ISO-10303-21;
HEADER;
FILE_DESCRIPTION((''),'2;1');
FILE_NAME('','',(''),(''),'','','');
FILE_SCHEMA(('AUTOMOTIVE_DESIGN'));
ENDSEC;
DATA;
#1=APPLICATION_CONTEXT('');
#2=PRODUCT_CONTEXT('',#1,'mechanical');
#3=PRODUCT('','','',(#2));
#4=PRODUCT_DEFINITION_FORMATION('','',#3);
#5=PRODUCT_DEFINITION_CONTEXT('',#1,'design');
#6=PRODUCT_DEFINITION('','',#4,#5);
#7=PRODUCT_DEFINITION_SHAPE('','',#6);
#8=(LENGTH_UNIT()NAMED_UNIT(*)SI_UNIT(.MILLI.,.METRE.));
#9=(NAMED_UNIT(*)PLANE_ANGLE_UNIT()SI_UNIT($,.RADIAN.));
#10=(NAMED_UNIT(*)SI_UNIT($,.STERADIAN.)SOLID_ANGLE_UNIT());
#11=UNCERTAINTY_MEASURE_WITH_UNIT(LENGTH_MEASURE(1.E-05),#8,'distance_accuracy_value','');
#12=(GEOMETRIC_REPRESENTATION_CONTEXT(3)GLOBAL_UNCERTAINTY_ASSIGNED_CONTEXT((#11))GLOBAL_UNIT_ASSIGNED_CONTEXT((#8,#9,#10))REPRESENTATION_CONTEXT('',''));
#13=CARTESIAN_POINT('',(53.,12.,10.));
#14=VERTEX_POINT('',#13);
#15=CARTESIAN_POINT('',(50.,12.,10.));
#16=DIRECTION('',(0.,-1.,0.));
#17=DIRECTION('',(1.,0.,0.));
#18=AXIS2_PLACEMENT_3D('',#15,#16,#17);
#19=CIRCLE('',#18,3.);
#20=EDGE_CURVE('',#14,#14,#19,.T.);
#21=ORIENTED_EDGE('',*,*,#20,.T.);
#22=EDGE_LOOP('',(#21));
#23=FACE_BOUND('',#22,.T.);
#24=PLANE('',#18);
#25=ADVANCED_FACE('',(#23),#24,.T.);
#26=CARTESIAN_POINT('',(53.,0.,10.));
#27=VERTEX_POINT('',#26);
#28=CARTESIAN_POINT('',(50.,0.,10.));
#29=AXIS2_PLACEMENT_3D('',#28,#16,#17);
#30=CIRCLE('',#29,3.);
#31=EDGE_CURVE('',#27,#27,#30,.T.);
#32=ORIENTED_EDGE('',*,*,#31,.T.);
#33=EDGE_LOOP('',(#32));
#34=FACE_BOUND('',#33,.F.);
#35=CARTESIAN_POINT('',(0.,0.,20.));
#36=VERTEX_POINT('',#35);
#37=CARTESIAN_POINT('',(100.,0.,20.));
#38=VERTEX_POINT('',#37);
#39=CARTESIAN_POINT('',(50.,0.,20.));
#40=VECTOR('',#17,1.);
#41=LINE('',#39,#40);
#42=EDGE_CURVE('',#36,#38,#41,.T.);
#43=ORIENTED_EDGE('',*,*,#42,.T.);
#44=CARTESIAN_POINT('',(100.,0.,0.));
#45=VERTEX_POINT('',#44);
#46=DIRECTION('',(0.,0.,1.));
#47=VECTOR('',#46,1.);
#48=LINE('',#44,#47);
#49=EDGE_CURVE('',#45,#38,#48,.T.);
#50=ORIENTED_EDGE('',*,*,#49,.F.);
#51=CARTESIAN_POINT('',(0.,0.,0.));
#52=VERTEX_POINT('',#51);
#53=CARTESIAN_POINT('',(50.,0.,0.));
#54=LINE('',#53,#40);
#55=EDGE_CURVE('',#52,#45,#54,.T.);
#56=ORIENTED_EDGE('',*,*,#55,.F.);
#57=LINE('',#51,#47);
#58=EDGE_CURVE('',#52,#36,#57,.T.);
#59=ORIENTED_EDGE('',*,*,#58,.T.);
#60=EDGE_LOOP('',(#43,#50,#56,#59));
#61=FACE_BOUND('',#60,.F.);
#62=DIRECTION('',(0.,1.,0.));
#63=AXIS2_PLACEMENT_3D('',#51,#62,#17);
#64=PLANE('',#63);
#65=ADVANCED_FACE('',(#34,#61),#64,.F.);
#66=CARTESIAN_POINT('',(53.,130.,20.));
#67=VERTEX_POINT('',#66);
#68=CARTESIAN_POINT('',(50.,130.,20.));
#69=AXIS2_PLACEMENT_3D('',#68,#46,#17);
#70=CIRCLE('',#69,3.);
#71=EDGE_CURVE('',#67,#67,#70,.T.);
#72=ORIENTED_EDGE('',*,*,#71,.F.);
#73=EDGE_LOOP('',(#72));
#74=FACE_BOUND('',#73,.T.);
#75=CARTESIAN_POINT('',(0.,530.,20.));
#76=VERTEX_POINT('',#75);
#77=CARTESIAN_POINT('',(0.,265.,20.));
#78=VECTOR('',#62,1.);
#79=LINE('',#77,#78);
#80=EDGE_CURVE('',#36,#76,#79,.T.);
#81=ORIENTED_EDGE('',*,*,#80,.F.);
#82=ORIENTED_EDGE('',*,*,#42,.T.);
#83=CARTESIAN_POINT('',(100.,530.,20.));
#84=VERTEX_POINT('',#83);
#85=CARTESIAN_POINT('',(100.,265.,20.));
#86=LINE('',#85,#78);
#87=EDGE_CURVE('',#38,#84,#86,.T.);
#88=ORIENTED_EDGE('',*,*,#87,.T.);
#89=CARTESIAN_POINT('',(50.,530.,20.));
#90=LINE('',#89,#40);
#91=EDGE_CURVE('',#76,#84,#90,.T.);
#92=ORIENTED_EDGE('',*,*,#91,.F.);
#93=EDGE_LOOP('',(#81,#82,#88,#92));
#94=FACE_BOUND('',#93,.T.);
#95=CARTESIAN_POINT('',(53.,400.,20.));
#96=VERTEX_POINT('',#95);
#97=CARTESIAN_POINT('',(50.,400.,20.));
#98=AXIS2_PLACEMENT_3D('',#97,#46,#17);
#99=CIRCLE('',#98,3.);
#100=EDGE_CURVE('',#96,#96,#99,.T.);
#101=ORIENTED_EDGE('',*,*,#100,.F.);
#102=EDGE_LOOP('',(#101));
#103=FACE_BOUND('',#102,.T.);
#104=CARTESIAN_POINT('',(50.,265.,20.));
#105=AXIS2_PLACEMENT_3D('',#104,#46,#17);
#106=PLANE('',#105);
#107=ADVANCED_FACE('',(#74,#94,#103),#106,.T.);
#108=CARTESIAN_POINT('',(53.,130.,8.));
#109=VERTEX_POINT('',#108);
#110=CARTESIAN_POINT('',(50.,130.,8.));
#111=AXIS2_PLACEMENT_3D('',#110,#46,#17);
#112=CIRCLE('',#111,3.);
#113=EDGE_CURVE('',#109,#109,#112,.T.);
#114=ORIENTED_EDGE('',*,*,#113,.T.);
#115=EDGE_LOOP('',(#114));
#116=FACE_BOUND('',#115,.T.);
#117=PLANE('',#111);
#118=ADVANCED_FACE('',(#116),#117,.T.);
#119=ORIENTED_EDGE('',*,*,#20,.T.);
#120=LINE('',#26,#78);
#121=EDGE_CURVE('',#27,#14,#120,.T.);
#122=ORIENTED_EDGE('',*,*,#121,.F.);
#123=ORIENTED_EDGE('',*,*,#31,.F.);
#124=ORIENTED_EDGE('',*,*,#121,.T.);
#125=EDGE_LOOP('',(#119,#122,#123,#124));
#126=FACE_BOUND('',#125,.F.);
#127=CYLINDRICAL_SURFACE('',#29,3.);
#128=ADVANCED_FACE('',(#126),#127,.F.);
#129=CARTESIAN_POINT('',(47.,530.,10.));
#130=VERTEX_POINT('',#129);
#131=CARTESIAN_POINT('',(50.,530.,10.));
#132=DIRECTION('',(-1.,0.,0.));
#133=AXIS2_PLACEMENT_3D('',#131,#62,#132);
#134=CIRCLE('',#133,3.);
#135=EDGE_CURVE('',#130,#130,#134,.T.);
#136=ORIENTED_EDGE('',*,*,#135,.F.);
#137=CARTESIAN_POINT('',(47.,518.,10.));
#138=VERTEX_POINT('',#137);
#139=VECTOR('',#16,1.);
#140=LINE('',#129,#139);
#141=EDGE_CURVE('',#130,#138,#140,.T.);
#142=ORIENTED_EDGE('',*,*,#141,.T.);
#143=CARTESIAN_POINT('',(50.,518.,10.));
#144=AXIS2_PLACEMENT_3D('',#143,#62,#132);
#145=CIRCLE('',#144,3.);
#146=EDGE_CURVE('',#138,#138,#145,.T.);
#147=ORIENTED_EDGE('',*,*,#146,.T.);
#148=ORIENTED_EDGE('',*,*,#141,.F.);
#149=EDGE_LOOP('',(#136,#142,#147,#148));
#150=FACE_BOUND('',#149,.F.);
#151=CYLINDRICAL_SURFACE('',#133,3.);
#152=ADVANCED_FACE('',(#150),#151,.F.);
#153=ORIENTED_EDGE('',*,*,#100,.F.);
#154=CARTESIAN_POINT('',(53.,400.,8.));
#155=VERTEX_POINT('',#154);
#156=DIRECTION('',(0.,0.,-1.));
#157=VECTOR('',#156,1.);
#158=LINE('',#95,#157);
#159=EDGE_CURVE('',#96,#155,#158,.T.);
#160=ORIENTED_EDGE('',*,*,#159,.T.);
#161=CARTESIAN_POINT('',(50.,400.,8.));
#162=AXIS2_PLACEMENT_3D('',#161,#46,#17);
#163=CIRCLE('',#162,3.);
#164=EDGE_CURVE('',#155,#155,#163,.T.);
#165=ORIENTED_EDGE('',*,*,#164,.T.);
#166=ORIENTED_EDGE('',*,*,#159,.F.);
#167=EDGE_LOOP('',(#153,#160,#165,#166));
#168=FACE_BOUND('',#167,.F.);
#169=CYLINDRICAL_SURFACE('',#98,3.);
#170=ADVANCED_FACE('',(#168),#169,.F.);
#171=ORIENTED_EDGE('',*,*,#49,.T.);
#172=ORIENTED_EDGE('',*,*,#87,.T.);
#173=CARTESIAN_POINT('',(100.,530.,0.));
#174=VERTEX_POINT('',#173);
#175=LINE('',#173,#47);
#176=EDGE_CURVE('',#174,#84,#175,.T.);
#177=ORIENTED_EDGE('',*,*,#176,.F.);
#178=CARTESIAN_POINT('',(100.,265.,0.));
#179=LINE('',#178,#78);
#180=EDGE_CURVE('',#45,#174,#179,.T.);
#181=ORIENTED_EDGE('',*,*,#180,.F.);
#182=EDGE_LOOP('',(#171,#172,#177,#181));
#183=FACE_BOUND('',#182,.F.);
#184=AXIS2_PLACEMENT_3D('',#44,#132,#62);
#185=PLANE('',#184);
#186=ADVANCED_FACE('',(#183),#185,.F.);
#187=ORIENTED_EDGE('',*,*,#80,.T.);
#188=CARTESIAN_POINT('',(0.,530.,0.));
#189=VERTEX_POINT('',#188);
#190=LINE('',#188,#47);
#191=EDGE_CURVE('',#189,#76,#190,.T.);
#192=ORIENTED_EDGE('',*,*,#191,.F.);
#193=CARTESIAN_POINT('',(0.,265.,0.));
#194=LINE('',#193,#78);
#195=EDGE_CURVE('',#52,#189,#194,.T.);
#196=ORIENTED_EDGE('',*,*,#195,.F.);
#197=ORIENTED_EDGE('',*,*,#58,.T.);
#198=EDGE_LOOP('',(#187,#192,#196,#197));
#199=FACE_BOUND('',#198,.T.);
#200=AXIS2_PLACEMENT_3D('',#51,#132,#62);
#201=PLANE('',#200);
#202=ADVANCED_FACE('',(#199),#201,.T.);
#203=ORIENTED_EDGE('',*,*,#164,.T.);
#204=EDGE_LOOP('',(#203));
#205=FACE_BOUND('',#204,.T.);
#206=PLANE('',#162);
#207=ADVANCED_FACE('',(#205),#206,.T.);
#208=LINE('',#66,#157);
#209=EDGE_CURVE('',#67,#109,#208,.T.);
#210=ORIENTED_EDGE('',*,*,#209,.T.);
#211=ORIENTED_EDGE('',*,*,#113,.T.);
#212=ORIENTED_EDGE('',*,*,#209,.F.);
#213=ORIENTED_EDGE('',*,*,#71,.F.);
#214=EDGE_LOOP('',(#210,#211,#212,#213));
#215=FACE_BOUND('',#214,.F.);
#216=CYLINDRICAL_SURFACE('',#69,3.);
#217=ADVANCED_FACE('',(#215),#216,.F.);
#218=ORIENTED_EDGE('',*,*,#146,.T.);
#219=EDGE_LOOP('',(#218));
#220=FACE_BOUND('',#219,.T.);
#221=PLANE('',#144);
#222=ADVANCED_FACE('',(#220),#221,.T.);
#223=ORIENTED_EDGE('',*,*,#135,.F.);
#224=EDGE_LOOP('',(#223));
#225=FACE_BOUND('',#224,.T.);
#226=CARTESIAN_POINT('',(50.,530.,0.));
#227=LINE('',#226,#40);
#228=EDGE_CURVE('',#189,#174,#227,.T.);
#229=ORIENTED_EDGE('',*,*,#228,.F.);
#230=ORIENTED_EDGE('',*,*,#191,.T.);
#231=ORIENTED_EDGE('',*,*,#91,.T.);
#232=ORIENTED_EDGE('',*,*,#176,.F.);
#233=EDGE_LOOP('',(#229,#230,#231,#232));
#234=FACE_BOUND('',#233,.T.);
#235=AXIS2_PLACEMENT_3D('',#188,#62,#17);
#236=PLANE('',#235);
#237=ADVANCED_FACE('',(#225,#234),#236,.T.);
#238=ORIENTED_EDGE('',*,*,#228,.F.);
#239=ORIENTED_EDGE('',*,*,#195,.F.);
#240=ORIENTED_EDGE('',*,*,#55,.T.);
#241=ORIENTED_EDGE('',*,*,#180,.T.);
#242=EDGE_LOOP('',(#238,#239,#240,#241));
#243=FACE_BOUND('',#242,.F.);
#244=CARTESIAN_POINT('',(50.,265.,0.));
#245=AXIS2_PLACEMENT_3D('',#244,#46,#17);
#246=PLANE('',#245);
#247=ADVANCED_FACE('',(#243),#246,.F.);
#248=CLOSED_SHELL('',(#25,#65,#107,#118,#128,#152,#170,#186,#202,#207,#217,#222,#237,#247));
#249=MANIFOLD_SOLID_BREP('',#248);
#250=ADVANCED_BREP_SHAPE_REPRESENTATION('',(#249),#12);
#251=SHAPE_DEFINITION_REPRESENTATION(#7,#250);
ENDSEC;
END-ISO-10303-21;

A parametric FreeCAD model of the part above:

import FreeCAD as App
import Part
import Sketcher
from FreeCAD import Vector

doc = App.newDocument("Part")
body = doc.addObject("PartDesign::Body", "Body")

# Sketch on XY plane
sketch1 = body.newObject("Sketcher::SketchObject", "Sketch")
sketch1.AttachmentSupport = (doc.getObject("XY_Plane"), [""])
sketch1.MapMode = "FlatFace"
sketch1.addGeometry([
    Part.LineSegment(Vector(0, 530, 0), Vector(0, 0, 0)),
    Part.LineSegment(Vector(0, 0, 0), Vector(100, 0, 0)),
    Part.LineSegment(Vector(100, 0, 0), Vector(100, 530, 0)),
    Part.LineSegment(Vector(100, 530, 0), Vector(0, 530, 0)),
], False)
sketch1.addConstraint([
    Sketcher.Constraint("Coincident", 0, 2, 1, 1),
    Sketcher.Constraint("Coincident", 1, 2, 2, 1),
    Sketcher.Constraint("Coincident", 2, 2, 3, 1),
    Sketcher.Constraint("Coincident", 3, 2, 0, 1),
    Sketcher.Constraint("Vertical", 0),
    Sketcher.Constraint("Horizontal", 1),
    Sketcher.Constraint("Vertical", 2),
    Sketcher.Constraint("Horizontal", 3),
    Sketcher.Constraint("Coincident", 0, 2, -1, 1),
    Sketcher.Constraint("DistanceX", 1, 1, 1, 2, 100.0),
    Sketcher.Constraint("DistanceY", 0, 2, 0, 1, 530.0),
])
pad1 = body.newObject("PartDesign::Pad", "Pad")
pad1.Profile = sketch1
pad1.Length = 20

# Sketch on XY plane
sketch2 = body.newObject("Sketcher::SketchObject", "Sketch001")
sketch2.AttachmentSupport = (doc.getObject("XY_Plane"), [""])
sketch2.MapMode = "FlatFace"
sketch2.AttachmentOffset = App.Placement(Vector(0, 0, 20), App.Rotation())
sketch2.addGeometry(Part.Circle(Vector(50, 130, 0), Vector(0, 0, 1), 3), False)
sketch2.addConstraint([
    Sketcher.Constraint("Diameter", 0, 6.0),
    Sketcher.Constraint("DistanceX", -1, 1, 0, 3, 50.0),
    Sketcher.Constraint("DistanceY", -1, 1, 0, 3, 130.0),
])
pocket1 = body.newObject("PartDesign::Pocket", "Pocket")
pocket1.Profile = sketch2
pocket1.Length = 12

# Sketch on XZ plane
sketch3 = body.newObject("Sketcher::SketchObject", "Sketch002")
sketch3.AttachmentSupport = (doc.getObject("XZ_Plane"), [""])
sketch3.MapMode = "FlatFace"
sketch3.addGeometry(Part.Circle(Vector(50, 10, 0), Vector(0, 0, 1), 3), False)
sketch3.addConstraint([
    Sketcher.Constraint("Diameter", 0, 6.0),
    Sketcher.Constraint("DistanceX", -1, 1, 0, 3, 50.0),
    Sketcher.Constraint("DistanceY", -1, 1, 0, 3, 10.0),
])
pocket2 = body.newObject("PartDesign::Pocket", "Pocket001")
pocket2.Profile = sketch3
pocket2.Length = 12

# Sketch on XZ plane
sketch4 = body.newObject("Sketcher::SketchObject", "Sketch003")
sketch4.AttachmentSupport = (doc.getObject("XZ_Plane"), [""])
sketch4.MapMode = "FlatFace"
sketch4.AttachmentOffset = App.Placement(Vector(0, 0, -530), App.Rotation())
sketch4.addGeometry(Part.Circle(Vector(50, 10, 0), Vector(0, 0, 1), 3), False)
sketch4.addConstraint([
    Sketcher.Constraint("Diameter", 0, 6.0),
    Sketcher.Constraint("DistanceX", -1, 1, 0, 3, 50.0),
    Sketcher.Constraint("DistanceY", -1, 1, 0, 3, 10.0),
])
pocket3 = body.newObject("PartDesign::Pocket", "Pocket002")
pocket3.Profile = sketch4
pocket3.Length = 12
pocket3.Reversed = True

# Sketch on XY plane
sketch5 = body.newObject("Sketcher::SketchObject", "Sketch004")
sketch5.AttachmentSupport = (doc.getObject("XY_Plane"), [""])
sketch5.MapMode = "FlatFace"
sketch5.AttachmentOffset = App.Placement(Vector(0, 0, 20), App.Rotation())
sketch5.addGeometry(Part.Circle(Vector(50, 400, 0), Vector(0, 0, 1), 3), False)
sketch5.addConstraint([
    Sketcher.Constraint("Diameter", 0, 6.0),
    Sketcher.Constraint("DistanceX", -1, 1, 0, 3, 50.0),
    Sketcher.Constraint("DistanceY", -1, 1, 0, 3, 400.0),
])
pocket4 = body.newObject("PartDesign::Pocket", "Pocket003")
pocket4.Profile = sketch5
pocket4.Length = 12

doc.recompute()
